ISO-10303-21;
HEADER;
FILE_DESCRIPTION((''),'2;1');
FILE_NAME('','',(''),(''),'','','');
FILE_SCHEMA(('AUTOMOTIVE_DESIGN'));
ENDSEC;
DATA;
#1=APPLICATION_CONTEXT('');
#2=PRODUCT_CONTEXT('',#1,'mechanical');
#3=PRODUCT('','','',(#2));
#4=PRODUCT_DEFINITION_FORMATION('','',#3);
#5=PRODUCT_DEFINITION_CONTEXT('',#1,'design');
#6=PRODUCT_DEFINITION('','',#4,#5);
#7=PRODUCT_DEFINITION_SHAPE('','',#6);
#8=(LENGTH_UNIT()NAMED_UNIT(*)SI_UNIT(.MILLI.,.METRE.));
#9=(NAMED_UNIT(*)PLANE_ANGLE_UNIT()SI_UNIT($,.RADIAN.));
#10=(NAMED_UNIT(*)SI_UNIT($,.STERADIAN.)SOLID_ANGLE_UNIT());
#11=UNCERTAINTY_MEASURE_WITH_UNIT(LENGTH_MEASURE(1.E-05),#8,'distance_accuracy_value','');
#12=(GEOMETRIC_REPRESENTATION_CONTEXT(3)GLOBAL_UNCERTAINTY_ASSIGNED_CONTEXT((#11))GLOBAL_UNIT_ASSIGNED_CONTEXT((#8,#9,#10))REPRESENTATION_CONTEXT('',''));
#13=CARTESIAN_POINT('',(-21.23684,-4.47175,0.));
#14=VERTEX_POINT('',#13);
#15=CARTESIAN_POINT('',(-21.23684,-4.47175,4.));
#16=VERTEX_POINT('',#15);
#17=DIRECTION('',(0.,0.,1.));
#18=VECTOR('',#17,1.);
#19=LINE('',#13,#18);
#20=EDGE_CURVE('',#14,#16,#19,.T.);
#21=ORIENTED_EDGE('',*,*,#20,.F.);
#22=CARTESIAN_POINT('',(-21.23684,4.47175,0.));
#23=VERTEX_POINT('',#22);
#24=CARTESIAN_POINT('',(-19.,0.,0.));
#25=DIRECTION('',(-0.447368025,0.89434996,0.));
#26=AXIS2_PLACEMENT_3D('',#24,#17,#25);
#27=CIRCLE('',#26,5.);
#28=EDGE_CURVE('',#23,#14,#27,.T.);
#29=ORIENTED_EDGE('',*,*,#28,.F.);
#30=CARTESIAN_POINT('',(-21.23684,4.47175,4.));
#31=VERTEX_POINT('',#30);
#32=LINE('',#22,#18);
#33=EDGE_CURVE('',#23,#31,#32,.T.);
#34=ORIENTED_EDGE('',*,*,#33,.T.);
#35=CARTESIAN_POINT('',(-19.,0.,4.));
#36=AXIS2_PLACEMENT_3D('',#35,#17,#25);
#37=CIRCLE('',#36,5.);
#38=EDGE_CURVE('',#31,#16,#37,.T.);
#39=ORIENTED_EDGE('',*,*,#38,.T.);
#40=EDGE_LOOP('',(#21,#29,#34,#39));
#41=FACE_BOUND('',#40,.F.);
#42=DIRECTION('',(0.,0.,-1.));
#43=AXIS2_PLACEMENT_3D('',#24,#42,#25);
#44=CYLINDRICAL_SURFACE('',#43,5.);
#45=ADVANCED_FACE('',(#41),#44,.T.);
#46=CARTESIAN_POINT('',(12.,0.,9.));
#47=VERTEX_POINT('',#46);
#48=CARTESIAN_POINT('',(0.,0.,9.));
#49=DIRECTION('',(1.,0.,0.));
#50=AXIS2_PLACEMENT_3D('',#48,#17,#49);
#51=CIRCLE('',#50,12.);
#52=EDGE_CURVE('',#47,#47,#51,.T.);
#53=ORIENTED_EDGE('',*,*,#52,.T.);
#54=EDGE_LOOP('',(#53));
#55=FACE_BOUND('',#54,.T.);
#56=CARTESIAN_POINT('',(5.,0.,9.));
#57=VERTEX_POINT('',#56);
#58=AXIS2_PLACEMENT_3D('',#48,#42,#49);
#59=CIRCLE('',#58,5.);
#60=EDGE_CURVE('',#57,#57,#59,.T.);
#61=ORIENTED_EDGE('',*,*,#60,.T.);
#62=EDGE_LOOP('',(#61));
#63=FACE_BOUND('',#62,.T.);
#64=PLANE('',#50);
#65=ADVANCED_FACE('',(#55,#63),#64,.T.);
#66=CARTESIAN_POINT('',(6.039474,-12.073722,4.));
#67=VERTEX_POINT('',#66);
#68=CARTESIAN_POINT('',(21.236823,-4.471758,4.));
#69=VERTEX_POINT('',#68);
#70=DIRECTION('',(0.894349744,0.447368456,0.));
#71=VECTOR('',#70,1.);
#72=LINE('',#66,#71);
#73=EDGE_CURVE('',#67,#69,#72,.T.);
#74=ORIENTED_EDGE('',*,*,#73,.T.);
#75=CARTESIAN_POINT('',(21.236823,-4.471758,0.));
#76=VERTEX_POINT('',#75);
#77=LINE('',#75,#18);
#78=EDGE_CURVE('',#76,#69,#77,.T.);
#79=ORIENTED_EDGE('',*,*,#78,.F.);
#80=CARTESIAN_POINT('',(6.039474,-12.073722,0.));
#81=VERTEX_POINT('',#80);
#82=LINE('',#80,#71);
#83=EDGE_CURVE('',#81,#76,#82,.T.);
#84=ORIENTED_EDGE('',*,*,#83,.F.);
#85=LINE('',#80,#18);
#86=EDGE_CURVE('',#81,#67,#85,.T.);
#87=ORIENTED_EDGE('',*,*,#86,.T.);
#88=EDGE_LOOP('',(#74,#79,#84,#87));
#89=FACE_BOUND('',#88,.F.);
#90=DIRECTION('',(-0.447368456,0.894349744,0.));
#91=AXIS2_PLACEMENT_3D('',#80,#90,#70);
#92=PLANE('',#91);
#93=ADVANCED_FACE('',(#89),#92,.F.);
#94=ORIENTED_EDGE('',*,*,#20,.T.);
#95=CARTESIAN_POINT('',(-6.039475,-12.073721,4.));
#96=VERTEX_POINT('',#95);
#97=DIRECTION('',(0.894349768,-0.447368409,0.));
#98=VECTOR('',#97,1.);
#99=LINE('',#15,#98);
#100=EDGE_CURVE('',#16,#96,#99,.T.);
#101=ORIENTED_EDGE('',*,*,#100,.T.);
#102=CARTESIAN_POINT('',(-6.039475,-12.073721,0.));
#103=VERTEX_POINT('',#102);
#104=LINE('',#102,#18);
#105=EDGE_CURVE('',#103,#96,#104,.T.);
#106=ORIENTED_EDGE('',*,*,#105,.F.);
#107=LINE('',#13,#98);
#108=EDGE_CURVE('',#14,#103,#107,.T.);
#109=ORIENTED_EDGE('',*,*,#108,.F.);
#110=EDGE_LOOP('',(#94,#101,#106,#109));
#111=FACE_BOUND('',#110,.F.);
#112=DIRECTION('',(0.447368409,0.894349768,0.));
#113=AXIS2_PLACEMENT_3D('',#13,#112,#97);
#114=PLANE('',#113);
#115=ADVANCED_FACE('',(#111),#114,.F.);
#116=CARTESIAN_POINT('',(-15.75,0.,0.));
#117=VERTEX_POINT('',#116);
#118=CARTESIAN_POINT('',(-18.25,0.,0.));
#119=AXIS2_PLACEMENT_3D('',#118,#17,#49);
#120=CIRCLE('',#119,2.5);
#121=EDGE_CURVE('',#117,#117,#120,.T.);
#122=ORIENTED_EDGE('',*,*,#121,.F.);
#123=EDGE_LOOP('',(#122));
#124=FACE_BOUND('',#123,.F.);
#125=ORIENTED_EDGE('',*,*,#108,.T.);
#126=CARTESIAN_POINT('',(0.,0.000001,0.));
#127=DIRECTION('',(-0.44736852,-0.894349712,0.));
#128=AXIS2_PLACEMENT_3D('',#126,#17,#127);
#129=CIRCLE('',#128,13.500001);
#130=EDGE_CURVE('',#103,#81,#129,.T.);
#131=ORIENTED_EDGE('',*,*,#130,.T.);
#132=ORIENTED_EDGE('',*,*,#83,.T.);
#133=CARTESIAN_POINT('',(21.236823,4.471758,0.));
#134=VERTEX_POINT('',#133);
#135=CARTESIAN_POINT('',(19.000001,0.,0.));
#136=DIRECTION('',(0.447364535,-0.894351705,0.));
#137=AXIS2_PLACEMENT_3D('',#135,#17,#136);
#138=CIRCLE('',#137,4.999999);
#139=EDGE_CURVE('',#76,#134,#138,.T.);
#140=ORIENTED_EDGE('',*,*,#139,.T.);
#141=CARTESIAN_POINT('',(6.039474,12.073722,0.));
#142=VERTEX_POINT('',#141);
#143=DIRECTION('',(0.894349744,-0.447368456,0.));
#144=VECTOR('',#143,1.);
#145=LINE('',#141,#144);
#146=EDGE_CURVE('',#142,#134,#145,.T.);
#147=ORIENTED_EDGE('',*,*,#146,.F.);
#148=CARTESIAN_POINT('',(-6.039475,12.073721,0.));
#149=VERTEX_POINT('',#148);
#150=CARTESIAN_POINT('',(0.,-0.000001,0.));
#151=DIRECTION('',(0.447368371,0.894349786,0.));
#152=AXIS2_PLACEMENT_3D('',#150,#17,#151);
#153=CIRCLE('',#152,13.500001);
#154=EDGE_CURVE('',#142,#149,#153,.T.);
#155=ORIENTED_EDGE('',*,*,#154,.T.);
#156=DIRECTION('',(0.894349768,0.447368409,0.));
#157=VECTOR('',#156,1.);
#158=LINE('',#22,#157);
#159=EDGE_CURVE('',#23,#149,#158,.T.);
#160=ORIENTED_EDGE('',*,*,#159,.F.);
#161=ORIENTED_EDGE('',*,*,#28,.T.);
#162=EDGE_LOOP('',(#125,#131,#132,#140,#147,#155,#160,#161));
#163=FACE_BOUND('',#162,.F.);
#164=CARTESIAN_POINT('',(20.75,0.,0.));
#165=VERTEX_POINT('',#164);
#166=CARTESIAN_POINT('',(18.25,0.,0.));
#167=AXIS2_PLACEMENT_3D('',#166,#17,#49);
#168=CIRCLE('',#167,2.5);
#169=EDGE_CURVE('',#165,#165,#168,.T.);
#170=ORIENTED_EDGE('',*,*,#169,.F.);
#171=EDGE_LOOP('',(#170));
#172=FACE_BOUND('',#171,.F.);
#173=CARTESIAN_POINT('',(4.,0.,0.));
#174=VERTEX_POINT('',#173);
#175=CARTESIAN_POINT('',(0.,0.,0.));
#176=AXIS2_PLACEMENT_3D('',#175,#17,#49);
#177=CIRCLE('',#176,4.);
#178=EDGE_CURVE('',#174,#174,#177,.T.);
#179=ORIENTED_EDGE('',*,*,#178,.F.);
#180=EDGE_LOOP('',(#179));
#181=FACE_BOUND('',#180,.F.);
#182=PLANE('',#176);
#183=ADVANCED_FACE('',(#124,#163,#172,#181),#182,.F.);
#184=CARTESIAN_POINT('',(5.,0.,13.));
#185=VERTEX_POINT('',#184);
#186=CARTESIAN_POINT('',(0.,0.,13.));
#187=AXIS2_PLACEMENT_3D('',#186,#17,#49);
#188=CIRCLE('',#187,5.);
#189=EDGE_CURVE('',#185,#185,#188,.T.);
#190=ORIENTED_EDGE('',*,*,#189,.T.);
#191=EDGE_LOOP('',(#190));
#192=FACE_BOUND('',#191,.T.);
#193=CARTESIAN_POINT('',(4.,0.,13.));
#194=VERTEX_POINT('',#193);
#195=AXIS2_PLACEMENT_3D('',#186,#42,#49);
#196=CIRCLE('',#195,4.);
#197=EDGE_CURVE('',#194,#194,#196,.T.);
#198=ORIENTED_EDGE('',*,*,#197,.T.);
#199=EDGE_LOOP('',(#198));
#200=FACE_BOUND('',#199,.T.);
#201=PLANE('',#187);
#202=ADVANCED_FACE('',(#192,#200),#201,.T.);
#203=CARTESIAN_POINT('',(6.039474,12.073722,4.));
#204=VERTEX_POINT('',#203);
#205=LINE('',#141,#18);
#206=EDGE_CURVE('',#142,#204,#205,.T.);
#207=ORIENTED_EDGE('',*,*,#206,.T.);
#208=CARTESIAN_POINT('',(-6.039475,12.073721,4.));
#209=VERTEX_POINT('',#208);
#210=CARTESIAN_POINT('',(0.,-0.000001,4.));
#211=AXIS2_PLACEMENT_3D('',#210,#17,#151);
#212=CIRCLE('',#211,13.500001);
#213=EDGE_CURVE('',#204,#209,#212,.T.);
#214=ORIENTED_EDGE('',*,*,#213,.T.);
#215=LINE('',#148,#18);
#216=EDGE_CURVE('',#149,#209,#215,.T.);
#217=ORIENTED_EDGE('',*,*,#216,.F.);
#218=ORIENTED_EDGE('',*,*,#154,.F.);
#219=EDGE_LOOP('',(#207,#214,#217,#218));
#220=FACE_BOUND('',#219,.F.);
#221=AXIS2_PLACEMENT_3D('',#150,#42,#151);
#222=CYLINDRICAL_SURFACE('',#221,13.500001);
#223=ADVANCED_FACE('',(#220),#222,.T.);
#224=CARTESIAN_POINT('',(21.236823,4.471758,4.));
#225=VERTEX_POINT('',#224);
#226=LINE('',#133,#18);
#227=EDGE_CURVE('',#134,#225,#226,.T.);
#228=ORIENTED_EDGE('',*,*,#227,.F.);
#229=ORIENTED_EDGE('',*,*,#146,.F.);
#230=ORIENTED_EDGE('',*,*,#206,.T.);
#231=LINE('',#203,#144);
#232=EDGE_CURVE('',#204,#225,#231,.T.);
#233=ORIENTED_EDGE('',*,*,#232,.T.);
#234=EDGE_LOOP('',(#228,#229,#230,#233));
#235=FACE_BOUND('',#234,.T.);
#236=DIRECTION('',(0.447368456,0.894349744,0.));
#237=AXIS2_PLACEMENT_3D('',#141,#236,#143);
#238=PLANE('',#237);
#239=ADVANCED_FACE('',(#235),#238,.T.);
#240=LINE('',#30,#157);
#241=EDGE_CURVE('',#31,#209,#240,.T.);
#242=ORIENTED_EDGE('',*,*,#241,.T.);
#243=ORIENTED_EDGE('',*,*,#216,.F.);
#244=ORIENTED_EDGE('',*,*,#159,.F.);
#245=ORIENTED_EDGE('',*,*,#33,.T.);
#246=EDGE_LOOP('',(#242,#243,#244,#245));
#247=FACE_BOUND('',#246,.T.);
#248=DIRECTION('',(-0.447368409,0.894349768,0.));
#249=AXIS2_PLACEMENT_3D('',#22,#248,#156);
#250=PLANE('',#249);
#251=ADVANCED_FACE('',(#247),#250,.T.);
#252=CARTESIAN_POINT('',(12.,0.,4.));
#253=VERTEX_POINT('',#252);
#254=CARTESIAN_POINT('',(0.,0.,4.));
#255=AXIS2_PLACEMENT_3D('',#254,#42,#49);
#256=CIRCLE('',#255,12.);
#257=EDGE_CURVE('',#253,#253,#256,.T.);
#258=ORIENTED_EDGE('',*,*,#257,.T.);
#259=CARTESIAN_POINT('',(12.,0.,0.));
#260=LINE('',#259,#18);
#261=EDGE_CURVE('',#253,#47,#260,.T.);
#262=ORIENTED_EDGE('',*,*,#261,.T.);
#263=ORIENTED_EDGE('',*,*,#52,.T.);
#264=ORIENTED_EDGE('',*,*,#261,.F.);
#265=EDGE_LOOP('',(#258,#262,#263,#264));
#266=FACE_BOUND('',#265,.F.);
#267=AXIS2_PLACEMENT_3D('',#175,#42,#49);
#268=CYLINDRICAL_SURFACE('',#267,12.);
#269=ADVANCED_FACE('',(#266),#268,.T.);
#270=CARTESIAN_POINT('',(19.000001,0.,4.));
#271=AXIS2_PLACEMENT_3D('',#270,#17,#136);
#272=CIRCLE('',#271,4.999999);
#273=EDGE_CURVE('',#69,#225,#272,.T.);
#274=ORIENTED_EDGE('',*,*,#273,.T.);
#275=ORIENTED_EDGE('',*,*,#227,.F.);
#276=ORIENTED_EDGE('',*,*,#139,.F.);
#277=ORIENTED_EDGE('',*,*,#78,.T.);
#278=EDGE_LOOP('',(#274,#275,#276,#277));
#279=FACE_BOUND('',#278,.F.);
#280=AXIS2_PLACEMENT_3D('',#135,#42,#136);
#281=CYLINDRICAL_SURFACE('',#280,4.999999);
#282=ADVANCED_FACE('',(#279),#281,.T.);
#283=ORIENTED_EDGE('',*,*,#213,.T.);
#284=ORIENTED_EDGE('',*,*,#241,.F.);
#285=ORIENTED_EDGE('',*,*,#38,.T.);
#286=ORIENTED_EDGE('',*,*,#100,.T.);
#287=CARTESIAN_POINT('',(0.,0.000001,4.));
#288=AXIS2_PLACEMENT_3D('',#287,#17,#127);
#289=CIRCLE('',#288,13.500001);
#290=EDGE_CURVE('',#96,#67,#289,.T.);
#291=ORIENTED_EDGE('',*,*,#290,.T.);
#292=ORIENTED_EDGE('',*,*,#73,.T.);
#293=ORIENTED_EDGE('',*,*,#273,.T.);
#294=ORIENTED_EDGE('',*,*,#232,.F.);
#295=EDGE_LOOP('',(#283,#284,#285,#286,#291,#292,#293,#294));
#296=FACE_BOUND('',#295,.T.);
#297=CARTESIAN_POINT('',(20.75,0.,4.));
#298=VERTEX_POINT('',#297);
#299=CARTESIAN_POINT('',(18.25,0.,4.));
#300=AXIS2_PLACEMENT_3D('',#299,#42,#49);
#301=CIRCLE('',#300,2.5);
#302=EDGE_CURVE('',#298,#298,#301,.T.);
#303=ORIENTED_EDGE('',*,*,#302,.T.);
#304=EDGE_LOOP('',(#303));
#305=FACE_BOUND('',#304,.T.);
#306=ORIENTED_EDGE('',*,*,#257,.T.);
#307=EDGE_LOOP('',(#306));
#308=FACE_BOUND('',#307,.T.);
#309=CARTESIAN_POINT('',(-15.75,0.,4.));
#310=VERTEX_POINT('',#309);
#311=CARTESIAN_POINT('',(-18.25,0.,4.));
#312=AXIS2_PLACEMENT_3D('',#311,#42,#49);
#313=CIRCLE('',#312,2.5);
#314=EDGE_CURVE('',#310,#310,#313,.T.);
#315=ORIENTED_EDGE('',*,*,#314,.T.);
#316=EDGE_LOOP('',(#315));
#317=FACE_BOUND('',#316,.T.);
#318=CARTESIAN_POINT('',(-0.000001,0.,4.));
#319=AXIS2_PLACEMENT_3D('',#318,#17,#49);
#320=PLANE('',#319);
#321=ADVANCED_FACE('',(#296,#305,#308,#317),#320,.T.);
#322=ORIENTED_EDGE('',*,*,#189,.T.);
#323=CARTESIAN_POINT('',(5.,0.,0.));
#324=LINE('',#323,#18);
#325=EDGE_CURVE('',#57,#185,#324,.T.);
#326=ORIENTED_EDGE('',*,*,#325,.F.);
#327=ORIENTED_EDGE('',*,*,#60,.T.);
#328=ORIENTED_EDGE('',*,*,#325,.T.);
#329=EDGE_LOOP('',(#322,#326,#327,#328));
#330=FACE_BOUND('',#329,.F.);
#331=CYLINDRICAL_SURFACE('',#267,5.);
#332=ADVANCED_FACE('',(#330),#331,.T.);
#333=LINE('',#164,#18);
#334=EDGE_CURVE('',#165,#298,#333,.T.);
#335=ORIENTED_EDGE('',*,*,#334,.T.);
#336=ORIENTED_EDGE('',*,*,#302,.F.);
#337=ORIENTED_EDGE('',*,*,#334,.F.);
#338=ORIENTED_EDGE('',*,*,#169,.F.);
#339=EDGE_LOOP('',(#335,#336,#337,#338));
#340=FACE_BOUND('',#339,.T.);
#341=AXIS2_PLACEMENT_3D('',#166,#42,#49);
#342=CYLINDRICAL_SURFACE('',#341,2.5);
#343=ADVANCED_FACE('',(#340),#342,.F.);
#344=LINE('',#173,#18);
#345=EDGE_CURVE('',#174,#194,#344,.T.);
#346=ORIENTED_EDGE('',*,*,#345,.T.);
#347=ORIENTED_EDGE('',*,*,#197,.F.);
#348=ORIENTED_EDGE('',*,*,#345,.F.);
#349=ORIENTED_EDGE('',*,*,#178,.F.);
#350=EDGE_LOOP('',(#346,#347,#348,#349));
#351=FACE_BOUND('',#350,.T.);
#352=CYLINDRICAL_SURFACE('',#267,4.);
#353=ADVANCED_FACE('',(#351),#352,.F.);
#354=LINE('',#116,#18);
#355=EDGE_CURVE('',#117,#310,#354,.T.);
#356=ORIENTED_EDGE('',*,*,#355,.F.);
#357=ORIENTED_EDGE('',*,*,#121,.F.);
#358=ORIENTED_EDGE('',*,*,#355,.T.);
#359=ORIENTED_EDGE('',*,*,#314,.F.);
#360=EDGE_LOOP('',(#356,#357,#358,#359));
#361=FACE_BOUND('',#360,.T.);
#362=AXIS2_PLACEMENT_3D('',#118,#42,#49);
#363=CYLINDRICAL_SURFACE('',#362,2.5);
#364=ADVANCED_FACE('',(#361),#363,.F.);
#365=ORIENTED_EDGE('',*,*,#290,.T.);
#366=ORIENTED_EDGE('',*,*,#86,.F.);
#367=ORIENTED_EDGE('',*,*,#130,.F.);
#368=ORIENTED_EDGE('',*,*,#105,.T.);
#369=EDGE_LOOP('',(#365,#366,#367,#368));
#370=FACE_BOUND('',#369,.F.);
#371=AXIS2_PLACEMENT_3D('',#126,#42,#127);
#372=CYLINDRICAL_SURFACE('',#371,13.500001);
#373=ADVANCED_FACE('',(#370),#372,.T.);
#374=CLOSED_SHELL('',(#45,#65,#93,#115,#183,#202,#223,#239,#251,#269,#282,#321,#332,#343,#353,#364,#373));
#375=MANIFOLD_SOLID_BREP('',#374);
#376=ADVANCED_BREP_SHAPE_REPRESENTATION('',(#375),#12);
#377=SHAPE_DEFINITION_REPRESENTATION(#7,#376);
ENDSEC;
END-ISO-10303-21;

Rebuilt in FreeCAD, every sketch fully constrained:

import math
import FreeCAD as App
import Part
import Sketcher

doc = App.newDocument("Part")
body = doc.addObject("PartDesign::Body", "Body")

# Sketch on XY plane
sketch1 = body.newObject("Sketcher::SketchObject", "Sketch")
sketch1.AttachmentSupport = (doc.getObject("XY_Plane"), [""])
sketch1.MapMode = "FlatFace"
sketch1.addGeometry(Part.ArcOfCircle(Part.Circle(App.Vector(-19, 0, 0), App.Vector(0, 0, 1), 5), math.radians(117), math.radians(243)), False)
sketch1.addGeometry(Part.LineSegment(App.Vector(-21.2, -4.5, 0), App.Vector(-6, -12.1, 0)), False)
sketch1.addGeometry(Part.ArcOfCircle(Part.Circle(App.Vector(0, 0, 0), App.Vector(0, 0, 1), 13.5), math.radians(-117), math.radians(-63)), False)
sketch1.addGeometry(Part.LineSegment(App.Vector(6, -12.1, 0), App.Vector(21.2, -4.5, 0)), False)
sketch1.addGeometry(Part.ArcOfCircle(Part.Circle(App.Vector(19, 0, 0), App.Vector(0, 0, 1), 5), math.radians(-63), math.radians(63)), False)
sketch1.addGeometry(Part.LineSegment(App.Vector(21.2, 4.5, 0), App.Vector(6, 12.1, 0)), False)
sketch1.addGeometry(Part.ArcOfCircle(Part.Circle(App.Vector(0, 0, 0), App.Vector(0, 0, 1), 13.5), math.radians(63), math.radians(117)), False)
sketch1.addGeometry(Part.LineSegment(App.Vector(-6, 12.1, 0), App.Vector(-21.2, 4.5, 0)), False)
sketch1.addConstraint(Sketcher.Constraint("Tangent", 0, 2, 1, 1))
sketch1.addConstraint(Sketcher.Constraint("Tangent", 1, 2, 2, 1))
sketch1.addConstraint(Sketcher.Constraint("Tangent", 2, 2, 3, 1))
sketch1.addConstraint(Sketcher.Constraint("Coincident", 3, 2, 4, 1))
sketch1.addConstraint(Sketcher.Constraint("Coincident", 4, 2, 5, 1))
sketch1.addConstraint(Sketcher.Constraint("Tangent", 5, 2, 6, 1))
sketch1.addConstraint(Sketcher.Constraint("Tangent", 6, 2, 7, 1))
sketch1.addConstraint(Sketcher.Constraint("Tangent", 7, 2, 0, 1))
sketch1.addConstraint(Sketcher.Constraint("Coincident", 2, 3, -1, 1))
sketch1.addConstraint(Sketcher.Constraint("Coincident", 6, 3, -1, 1))
sketch1.addConstraint(Sketcher.Constraint("Equal", 0, 4))
sketch1.addConstraint(Sketcher.Constraint("Equal", 2, 6))
sketch1.addConstraint(Sketcher.Constraint("Symmetric", 0, 3, 4, 3, -1, 1))
sketch1.addConstraint(Sketcher.Constraint("Symmetric", 3, 2, 4, 2, -1))
sketch1.addConstraint(Sketcher.Constraint("Radius", 0, 5.0))
sketch1.addConstraint(Sketcher.Constraint("Radius", 2, 13.500001))
sketch1.addConstraint(Sketcher.Constraint("DistanceX", 0, 3, -1, 1, 19.0))
sketch1.addConstraint(Sketcher.Constraint("DistanceX", 1, 2, 3, 2, 27.276298))
pad1 = body.newObject("PartDesign::Pad", "Pad")
pad1.Profile = sketch1
pad1.Length = 4

# Sketch on XY plane
sketch2 = body.newObject("Sketcher::SketchObject", "Sketch001")
sketch2.AttachmentSupport = (doc.getObject("XY_Plane"), [""])
sketch2.MapMode = "FlatFace"
sketch2.addGeometry(Part.Circle(App.Vector(0, 0, 0), App.Vector(0, 0, 1), 12), False)
sketch2.addConstraint(Sketcher.Constraint("Coincident", 0, 3, -1, 1))
sketch2.addConstraint(Sketcher.Constraint("Diameter", 0, 24.0))
pad2 = body.newObject("PartDesign::Pad", "Pad001")
pad2.Profile = sketch2
pad2.Length = 9

# Sketch on XY plane
sketch3 = body.newObject("Sketcher::SketchObject", "Sketch002")
sketch3.AttachmentSupport = (doc.getObject("XY_Plane"), [""])
sketch3.MapMode = "FlatFace"
sketch3.addGeometry(Part.Circle(App.Vector(0, 0, 0), App.Vector(0, 0, 1), 5), False)
sketch3.addConstraint(Sketcher.Constraint("Coincident", 0, 3, -1, 1))
sketch3.addConstraint(Sketcher.Constraint("Diameter", 0, 10.0))
pad3 = body.newObject("PartDesign::Pad", "Pad002")
pad3.Profile = sketch3
pad3.Length = 13

# Sketch on XY plane
sketch4 = body.newObject("Sketcher::SketchObject", "Sketch003")
sketch4.AttachmentSupport = (doc.getObject("XY_Plane"), [""])
sketch4.MapMode = "FlatFace"
sketch4.addGeometry(Part.Circle(App.Vector(0, 0, 0), App.Vector(0, 0, 1), 4), False)
sketch4.addGeometry(Part.Circle(App.Vector(18.2, 0, 0), App.Vector(0, 0, 1), 2.5), False)
sketch4.addGeometry(Part.Circle(App.Vector(-18.2, 0, 0), App.Vector(0, 0, 1), 2.5), False)
sketch4.addConstraint(Sketcher.Constraint("Coincident", 0, 3, -1, 1))
sketch4.addConstraint(Sketcher.Constraint("Equal", 1, 2))
sketch4.addConstraint(Sketcher.Constraint("Symmetric", 1, 3, 2, 3, -1, 1))
sketch4.addConstraint(Sketcher.Constraint("PointOnObject", 1, 3, -1))
sketch4.addConstraint(Sketcher.Constraint("Diameter", 0, 8.0))
sketch4.addConstraint(Sketcher.Constraint("Diameter", 1, 5.0))
sketch4.addConstraint(Sketcher.Constraint("DistanceX", 2, 3, 1, 3, 36.5))
pocket1 = body.newObject("PartDesign::Pocket", "Pocket")
pocket1.Profile = sketch4
pocket1.Type = "ThroughAll"
pocket1.Midplane = True

doc.recompute()
